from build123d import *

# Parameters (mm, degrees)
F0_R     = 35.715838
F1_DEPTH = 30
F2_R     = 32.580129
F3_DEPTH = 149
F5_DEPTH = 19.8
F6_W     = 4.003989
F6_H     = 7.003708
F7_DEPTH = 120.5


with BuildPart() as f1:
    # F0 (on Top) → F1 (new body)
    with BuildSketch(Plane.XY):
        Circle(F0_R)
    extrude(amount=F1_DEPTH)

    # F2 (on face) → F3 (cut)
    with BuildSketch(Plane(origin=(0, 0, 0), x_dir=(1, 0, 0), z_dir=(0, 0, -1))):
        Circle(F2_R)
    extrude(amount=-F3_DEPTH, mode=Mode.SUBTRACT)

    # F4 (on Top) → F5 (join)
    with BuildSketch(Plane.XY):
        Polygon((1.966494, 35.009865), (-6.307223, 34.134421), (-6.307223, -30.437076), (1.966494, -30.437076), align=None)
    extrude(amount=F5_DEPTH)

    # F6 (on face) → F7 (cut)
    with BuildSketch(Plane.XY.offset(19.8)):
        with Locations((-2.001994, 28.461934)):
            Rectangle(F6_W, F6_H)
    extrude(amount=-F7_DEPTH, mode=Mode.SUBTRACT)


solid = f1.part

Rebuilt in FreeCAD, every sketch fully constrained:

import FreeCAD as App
import Part
import Sketcher
Q = App.Units.Quantity

doc = App.newDocument("Part")
body = doc.addObject("PartDesign::Body", "Body")

sketch1 = doc.addObject("Sketcher::SketchObject", "Sketch")
body.addObject(sketch1)
sketch1.AttachmentSupport = (doc.XY_Plane, [""])
sketch1.MapMode = "FlatFace"
sketch1.addGeometry(Part.Circle(App.Vector(0, 0, 0), App.Vector(0, 0, 1), 36), False)
sketch1.addConstraint(Sketcher.Constraint("Coincident", 0, 3, -1, 1))
sketch1.addConstraint(Sketcher.Constraint("Diameter", 0, 71.431676))
pad1 = doc.addObject("PartDesign::Pad", "Pad")
body.addObject(pad1)
pad1.Profile = sketch1
pad1.Length = 30

sketch2 = doc.addObject("Sketcher::SketchObject", "Sketch001")
body.addObject(sketch2)
sketch2.AttachmentSupport = (doc.XY_Plane, [""])
sketch2.MapMode = "FlatFace"
sketch2.addGeometry(Part.Circle(App.Vector(0, 0, 0), App.Vector(0, 0, 1), 33), False)
sketch2.addConstraint(Sketcher.Constraint("Coincident", 0, 3, -1, 1))
sketch2.addConstraint(Sketcher.Constraint("Diameter", 0, 65.160258))
pocket1 = doc.addObject("PartDesign::Pocket", "Pocket")
body.addObject(pocket1)
pocket1.Profile = sketch2
pocket1.Length = 149
pocket1.Reversed = True

sketch3 = doc.addObject("Sketcher::SketchObject", "Sketch002")
body.addObject(sketch3)
sketch3.AttachmentSupport = (doc.XY_Plane, [""])
sketch3.MapMode = "FlatFace"
sketch3.addGeometry(Part.LineSegment(App.Vector(2, 35, 0), App.Vector(-6, 34, 0)), False)
sketch3.addGeometry(Part.LineSegment(App.Vector(-6, 34, 0), App.Vector(-6, -30, 0)), False)
sketch3.addGeometry(Part.LineSegment(App.Vector(-6, -30, 0), App.Vector(2, -30, 0)), False)
sketch3.addGeometry(Part.LineSegment(App.Vector(2, -30, 0), App.Vector(2, 35, 0)), False)
sketch3.addConstraint(Sketcher.Constraint("Coincident", 0, 2, 1, 1))
sketch3.addConstraint(Sketcher.Constraint("Coincident", 1, 2, 2, 1))
sketch3.addConstraint(Sketcher.Constraint("Coincident", 2, 2, 3, 1))
sketch3.addConstraint(Sketcher.Constraint("Coincident", 3, 2, 0, 1))
sketch3.addConstraint(Sketcher.Constraint("Vertical", 1))
sketch3.addConstraint(Sketcher.Constraint("Horizontal", 2))
sketch3.addConstraint(Sketcher.Constraint("Vertical", 3))
sketch3.addConstraint(Sketcher.Constraint("Angle", 0, Q("-173.959994 deg")))
sketch3.addConstraint(Sketcher.Constraint("DistanceY", 3, 1, 3, 2, 65.446941))
sketch3.addConstraint(Sketcher.Constraint("DistanceX", 2, 1, 2, 2, 8.273717))
sketch3.addConstraint(Sketcher.Constraint("DistanceY", -1, 1, 0, 2, 34.134421))
sketch3.addConstraint(Sketcher.Constraint("DistanceX", 0, 2, -1, 1, 6.307223))
pad2 = doc.addObject("PartDesign::Pad", "Pad001")
body.addObject(pad2)
pad2.Profile = sketch3
pad2.Length = 19.8

sketch4 = doc.addObject("Sketcher::SketchObject", "Sketch003")
body.addObject(sketch4)
sketch4.AttachmentSupport = (doc.XY_Plane, [""])
sketch4.MapMode = "FlatFace"
sketch4.AttachmentOffset = App.Placement(App.Vector(0, 0, 19.8), App.Rotation())
sketch4.addGeometry(Part.LineSegment(App.Vector(-4, 32, 0), App.Vector(-4, 25, 0)), False)
sketch4.addGeometry(Part.LineSegment(App.Vector(-4, 25, 0), App.Vector(0, 25, 0)), False)
sketch4.addGeometry(Part.LineSegment(App.Vector(0, 25, 0), App.Vector(0, 32, 0)), False)
sketch4.addGeometry(Part.LineSegment(App.Vector(0, 32, 0), App.Vector(-4, 32, 0)), False)
sketch4.addConstraint(Sketcher.Constraint("Coincident", 0, 2, 1, 1))
sketch4.addConstraint(Sketcher.Constraint("Coincident", 1, 2, 2, 1))
sketch4.addConstraint(Sketcher.Constraint("Coincident", 2, 2, 3, 1))
sketch4.addConstraint(Sketcher.Constraint("Coincident", 3, 2, 0, 1))
sketch4.addConstraint(Sketcher.Constraint("Vertical", 0))
sketch4.addConstraint(Sketcher.Constraint("Horizontal", 1))
sketch4.addConstraint(Sketcher.Constraint("Vertical", 2))
sketch4.addConstraint(Sketcher.Constraint("Horizontal", 3))
sketch4.addConstraint(Sketcher.Constraint("PointOnObject", 1, 2, -2))
sketch4.addConstraint(Sketcher.Constraint("DistanceX", 1, 1, 1, 2, 4.003989))
sketch4.addConstraint(Sketcher.Constraint("DistanceY", 0, 2, 0, 1, 7.003708))
sketch4.addConstraint(Sketcher.Constraint("DistanceY", -1, 1, 0, 2, 24.96008))
pocket2 = doc.addObject("PartDesign::Pocket", "Pocket001")
body.addObject(pocket2)
pocket2.Profile = sketch4
pocket2.Length = 120.5

doc.recompute()
